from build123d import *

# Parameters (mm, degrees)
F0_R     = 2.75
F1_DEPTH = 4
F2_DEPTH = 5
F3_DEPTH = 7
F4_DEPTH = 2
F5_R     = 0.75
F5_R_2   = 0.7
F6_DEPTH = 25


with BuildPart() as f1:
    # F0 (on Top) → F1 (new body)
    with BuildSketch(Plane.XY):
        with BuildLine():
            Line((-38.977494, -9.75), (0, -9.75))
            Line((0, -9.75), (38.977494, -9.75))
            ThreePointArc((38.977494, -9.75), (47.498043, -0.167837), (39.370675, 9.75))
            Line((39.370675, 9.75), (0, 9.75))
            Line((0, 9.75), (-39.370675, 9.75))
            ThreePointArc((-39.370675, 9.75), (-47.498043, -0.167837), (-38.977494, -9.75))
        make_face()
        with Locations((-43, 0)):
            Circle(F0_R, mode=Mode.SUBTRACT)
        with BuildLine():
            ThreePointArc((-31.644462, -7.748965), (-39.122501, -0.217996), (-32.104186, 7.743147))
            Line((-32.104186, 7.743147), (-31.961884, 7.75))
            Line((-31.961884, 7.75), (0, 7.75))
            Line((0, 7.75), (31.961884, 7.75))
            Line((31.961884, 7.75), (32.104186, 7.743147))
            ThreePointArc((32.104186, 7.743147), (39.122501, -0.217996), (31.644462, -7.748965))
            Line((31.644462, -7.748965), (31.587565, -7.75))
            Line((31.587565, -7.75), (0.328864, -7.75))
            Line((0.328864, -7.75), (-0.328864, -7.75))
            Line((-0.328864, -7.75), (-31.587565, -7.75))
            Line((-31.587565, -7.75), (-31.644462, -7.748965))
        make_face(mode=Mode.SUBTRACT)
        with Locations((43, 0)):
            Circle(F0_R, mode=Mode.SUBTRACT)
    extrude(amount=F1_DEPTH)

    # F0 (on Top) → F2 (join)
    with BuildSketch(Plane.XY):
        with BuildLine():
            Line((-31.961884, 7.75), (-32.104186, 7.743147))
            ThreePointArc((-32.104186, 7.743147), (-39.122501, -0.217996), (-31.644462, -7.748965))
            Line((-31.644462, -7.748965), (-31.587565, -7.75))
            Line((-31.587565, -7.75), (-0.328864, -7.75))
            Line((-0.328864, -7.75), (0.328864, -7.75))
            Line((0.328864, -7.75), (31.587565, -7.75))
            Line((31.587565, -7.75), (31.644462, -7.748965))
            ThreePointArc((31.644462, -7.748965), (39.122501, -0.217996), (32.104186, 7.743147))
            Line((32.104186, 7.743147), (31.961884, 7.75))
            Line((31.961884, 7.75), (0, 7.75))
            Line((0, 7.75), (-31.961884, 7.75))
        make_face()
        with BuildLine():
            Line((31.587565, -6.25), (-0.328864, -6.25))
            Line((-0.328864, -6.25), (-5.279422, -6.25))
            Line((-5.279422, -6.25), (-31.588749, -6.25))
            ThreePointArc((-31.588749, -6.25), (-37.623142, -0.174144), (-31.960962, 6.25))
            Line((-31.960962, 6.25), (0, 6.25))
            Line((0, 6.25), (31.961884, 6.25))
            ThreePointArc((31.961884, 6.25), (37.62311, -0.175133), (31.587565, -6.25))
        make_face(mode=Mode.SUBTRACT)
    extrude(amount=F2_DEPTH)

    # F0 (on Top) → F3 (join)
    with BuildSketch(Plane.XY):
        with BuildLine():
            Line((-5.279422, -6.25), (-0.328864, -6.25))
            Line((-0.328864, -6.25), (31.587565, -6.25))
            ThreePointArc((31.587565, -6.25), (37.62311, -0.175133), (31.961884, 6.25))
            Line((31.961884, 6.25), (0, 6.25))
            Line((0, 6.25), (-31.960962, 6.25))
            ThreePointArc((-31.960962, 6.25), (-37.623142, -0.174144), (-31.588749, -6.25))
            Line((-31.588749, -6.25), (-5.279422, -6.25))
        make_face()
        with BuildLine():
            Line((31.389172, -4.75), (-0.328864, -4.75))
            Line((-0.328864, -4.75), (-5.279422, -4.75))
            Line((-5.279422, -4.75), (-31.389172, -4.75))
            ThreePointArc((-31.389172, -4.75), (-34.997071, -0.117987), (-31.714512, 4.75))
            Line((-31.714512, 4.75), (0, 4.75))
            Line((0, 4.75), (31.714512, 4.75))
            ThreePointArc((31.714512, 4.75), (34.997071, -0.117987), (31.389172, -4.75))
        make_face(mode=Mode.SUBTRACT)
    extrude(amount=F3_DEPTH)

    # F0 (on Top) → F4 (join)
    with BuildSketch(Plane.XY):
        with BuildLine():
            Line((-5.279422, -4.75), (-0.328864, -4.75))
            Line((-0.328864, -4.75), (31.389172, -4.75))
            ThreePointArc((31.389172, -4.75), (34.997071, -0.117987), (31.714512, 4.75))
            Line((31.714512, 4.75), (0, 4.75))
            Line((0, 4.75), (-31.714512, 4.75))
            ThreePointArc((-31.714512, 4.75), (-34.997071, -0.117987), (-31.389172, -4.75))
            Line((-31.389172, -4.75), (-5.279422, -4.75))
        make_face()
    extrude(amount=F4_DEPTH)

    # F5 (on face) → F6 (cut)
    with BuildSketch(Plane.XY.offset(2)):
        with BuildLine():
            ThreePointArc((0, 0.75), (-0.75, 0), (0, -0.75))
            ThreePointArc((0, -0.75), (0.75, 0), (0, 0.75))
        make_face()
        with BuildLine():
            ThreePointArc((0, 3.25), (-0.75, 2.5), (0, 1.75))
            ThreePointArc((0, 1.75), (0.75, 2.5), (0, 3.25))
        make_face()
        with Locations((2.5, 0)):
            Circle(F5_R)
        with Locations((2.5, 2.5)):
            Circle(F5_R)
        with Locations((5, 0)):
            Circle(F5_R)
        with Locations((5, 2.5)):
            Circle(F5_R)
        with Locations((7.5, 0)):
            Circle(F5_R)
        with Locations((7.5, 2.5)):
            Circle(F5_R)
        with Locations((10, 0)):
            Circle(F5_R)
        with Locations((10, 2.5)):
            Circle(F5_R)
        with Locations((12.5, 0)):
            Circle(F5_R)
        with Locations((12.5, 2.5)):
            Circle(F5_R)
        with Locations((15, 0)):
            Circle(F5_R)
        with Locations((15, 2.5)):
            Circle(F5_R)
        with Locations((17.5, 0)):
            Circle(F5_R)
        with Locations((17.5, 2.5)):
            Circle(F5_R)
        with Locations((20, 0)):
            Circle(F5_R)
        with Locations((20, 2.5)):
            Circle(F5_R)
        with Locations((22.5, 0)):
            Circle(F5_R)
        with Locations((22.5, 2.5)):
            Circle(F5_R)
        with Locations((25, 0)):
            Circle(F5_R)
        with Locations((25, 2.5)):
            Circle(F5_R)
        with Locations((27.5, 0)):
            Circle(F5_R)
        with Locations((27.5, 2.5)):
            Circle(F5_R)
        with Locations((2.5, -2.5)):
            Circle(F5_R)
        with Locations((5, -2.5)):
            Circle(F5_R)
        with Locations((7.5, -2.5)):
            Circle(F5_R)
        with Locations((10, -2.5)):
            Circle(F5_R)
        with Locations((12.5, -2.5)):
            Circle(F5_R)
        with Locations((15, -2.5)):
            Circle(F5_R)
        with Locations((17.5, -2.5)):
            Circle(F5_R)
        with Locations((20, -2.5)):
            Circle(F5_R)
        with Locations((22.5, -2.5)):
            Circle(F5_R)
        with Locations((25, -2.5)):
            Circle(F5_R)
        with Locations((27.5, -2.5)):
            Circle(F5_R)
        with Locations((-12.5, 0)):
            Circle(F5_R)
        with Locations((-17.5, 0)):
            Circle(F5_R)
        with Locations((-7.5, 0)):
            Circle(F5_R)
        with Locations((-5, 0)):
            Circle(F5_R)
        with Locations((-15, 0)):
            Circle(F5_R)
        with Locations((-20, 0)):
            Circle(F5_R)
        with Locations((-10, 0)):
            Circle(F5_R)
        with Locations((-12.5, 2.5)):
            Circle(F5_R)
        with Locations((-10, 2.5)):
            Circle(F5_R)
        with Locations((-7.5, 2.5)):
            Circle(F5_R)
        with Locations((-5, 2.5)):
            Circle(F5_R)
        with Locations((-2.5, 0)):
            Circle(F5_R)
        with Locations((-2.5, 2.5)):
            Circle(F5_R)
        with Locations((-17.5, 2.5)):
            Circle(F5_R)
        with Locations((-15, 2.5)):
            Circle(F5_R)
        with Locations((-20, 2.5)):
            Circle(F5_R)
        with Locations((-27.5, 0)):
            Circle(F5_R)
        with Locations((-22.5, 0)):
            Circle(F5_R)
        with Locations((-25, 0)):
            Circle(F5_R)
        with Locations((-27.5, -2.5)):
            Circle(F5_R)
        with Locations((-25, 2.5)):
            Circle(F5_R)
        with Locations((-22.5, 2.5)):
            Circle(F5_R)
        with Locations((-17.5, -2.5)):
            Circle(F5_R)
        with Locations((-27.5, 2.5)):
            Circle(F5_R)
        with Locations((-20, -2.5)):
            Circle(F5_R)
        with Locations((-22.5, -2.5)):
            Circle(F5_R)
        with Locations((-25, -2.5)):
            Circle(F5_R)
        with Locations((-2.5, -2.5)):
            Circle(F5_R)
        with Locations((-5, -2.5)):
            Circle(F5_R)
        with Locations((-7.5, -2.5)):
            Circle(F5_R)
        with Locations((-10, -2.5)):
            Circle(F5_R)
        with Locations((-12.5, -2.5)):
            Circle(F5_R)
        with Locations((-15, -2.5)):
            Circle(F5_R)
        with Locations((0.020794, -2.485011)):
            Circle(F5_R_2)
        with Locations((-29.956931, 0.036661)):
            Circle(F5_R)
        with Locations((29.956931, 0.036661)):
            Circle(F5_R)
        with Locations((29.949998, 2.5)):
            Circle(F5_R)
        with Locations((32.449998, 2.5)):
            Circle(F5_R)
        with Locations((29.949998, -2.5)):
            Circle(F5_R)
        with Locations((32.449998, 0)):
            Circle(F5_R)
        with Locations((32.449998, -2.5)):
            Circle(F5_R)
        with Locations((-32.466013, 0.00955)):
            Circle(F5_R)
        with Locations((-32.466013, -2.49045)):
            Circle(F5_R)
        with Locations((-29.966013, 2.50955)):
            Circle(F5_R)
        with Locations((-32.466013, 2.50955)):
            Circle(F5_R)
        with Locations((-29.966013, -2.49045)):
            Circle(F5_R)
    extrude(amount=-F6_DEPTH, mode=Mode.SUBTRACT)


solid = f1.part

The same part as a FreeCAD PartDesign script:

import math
import FreeCAD as App
import Part
import Sketcher

V = App.Vector

doc = App.newDocument("Part")
body = doc.addObject("PartDesign::Body", "Body")

# Sketch on XY plane
sketch1 = body.newObject("Sketcher::SketchObject", "Sketch")
sketch1.AttachmentSupport = (doc.getObject("XY_Plane"), [""])
sketch1.MapMode = "FlatFace"
sketch1.addGeometry([
    Part.LineSegment(V(-38.98, -9.75, 0), V(38.98, -9.75, 0)),  # 0
    Part.ArcOfCircle(Part.Circle(V(37.63, 0.03, 0), V(0, 0, 1), 9.87), math.radians(-82), math.radians(80)),  # 1
    Part.LineSegment(V(39.37, 9.75, 0), V(-39.37, 9.75, 0)),  # 2
    Part.ArcOfCircle(Part.Circle(V(-37.63, 0.03, 0), V(0, 0, 1), 9.87), math.radians(100), math.radians(262)),  # 3
    Part.Circle(V(-43, 0, 0), V(0, 0, 1), 2.75),  # 4
    Part.LineSegment(V(-31.59, -7.75, 0), V(-31.64, -7.75, 0)),  # 5
    Part.ArcOfCircle(Part.Circle(V(-31.36, 0.01, 0), V(0, 0, 1), 7.77), math.radians(96), math.radians(268)),  # 6
    Part.LineSegment(V(-32.1, 7.74, 0), V(-31.96, 7.75, 0)),  # 7
    Part.LineSegment(V(-31.96, 7.75, 0), V(31.96, 7.75, 0)),  # 8
    Part.LineSegment(V(31.96, 7.75, 0), V(32.1, 7.74, 0)),  # 9
    Part.ArcOfCircle(Part.Circle(V(31.36, 0.01, 0), V(0, 0, 1), 7.77), math.radians(-88), math.radians(84)),  # 10
    Part.LineSegment(V(31.64, -7.75, 0), V(31.59, -7.75, 0)),  # 11
    Part.LineSegment(V(31.59, -7.75, 0), V(-31.59, -7.75, 0)),  # 12
    Part.Circle(V(43, 0, 0), V(0, 0, 1), 2.75),  # 13
], False)
sketch1.addConstraint([
    Sketcher.Constraint("Coincident", 0, 2, 1, 1),
    Sketcher.Constraint("Coincident", 1, 2, 2, 1),
    Sketcher.Constraint("Coincident", 2, 2, 3, 1),
    Sketcher.Constraint("Coincident", 3, 2, 0, 1),
    Sketcher.Constraint("Coincident", 5, 2, 6, 2),
    Sketcher.Constraint("Coincident", 6, 1, 7, 1),
    Sketcher.Constraint("Coincident", 7, 2, 8, 1),
    Sketcher.Constraint("Coincident", 8, 2, 9, 1),
    Sketcher.Constraint("Coincident", 9, 2, 10, 2),
    Sketcher.Constraint("Coincident", 10, 1, 11, 1),
    Sketcher.Constraint("Coincident", 11, 2, 12, 1),
    Sketcher.Constraint("Coincident", 12, 2, 5, 1),
    Sketcher.Constraint("Horizontal", 0),
    Sketcher.Constraint("Horizontal", 2),
    Sketcher.Constraint("Horizontal", 8),
    Sketcher.Constraint("Horizontal", 12),
    Sketcher.Constraint("Equal", 1, 3),
    Sketcher.Constraint("Equal", 6, 10),
    Sketcher.Constraint("Equal", 4, 13),
    Sketcher.Constraint("Symmetric", 4, 3, 13, 3, -1, 1),
    Sketcher.Constraint("Symmetric", 1, 3, 3, 3, -2),
    Sketcher.Constraint("Symmetric", 6, 3, 10, 3, -2),
    Sketcher.Constraint("PointOnObject", 4, 3, -1),
    Sketcher.Constraint("Horizontal", 6, 1, 9, 2),
    Sketcher.Constraint("Horizontal", 5, 2, 10, 1),
    Sketcher.Constraint("Equal", 7, 9),
    Sketcher.Constraint("Equal", 5, 11),
    Sketcher.Constraint("Diameter", 4, 5.5),
    Sketcher.Constraint("DistanceX", 4, 3, -1, 1, 43.0),
    Sketcher.Constraint("DistanceY", 7, 2, 2, 2, 2.0),
    Sketcher.Constraint("DistanceY", 0, 2, 11, 2, 2.0),
    Sketcher.Constraint("DistanceY", 0, 2, 1, 2, 19.5),
    Sketcher.Constraint("DistanceY", 0, 2, -1, 1, 9.75),
    Sketcher.Constraint("Radius", 1, 9.87416),
    Sketcher.Constraint("Radius", 6, 7.766573),
    Sketcher.Constraint("DistanceX", 0, 1, 0, 2, 77.954988),
    Sketcher.Constraint("DistanceX", 2, 2, 2, 1, 78.74135),
    Sketcher.Constraint("DistanceX", 8, 1, 8, 2, 63.923768),
    Sketcher.Constraint("DistanceX", 12, 2, 12, 1, 63.17513),
    Sketcher.Constraint("DistanceX", 8, 2, 9, 2, 0.142302),
    Sketcher.Constraint("DistanceX", -1, 1, 10, 1, 31.644462),
    Sketcher.Constraint("DistanceX", 6, 3, 10, 3, 62.718691),
    Sketcher.Constraint("DistanceY", 5, 2, 3, 3, 7.780181),
])
pad1 = body.newObject("PartDesign::Pad", "Pad")
pad1.Profile = sketch1
pad1.Length = 4

# Sketch on XY plane
sketch2 = body.newObject("Sketcher::SketchObject", "Sketch001")
sketch2.AttachmentSupport = (doc.getObject("XY_Plane"), [""])
sketch2.MapMode = "FlatFace"
sketch2.addGeometry([
    Part.LineSegment(V(-31.96, 7.75, 0), V(-32.1, 7.74, 0)),  # 0
    Part.ArcOfCircle(Part.Circle(V(-31.36, 0.01, 0), V(0, 0, 1), 7.77), math.radians(96), math.radians(268)),  # 1
    Part.LineSegment(V(-31.64, -7.75, 0), V(-31.59, -7.75, 0)),  # 2
    Part.LineSegment(V(-31.59, -7.75, 0), V(31.59, -7.75, 0)),  # 3
    Part.LineSegment(V(31.59, -7.75, 0), V(31.64, -7.75, 0)),  # 4
    Part.ArcOfCircle(Part.Circle(V(31.36, 0.01, 0), V(0, 0, 1), 7.77), math.radians(-88), math.radians(84)),  # 5
    Part.LineSegment(V(32.1, 7.74, 0), V(31.96, 7.75, 0)),  # 6
    Part.LineSegment(V(31.96, 7.75, 0), V(-31.96, 7.75, 0)),  # 7
    Part.ArcOfCircle(Part.Circle(V(31.36, 0.01, 0), V(0, 0, 1), 6.27), math.radians(-88), math.radians(84)),  # 8
    Part.LineSegment(V(31.59, -6.25, 0), V(-31.59, -6.25, 0)),  # 9
    Part.ArcOfCircle(Part.Circle(V(-31.36, 0.01, 0), V(0, 0, 1), 6.27), math.radians(96), math.radians(268)),  # 10
    Part.LineSegment(V(-31.96, 6.25, 0), V(31.96, 6.25, 0)),  # 11
], False)
sketch2.addConstraint([
    Sketcher.Constraint("Coincident", 0, 2, 1, 1),
    Sketcher.Constraint("Coincident", 1, 2, 2, 1),
    Sketcher.Constraint("Coincident", 2, 2, 3, 1),
    Sketcher.Constraint("Coincident", 3, 2, 4, 1),
    Sketcher.Constraint("Coincident", 4, 2, 5, 1),
    Sketcher.Constraint("Coincident", 5, 2, 6, 1),
    Sketcher.Constraint("Coincident", 6, 2, 7, 1),
    Sketcher.Constraint("Coincident", 7, 2, 0, 1),
    Sketcher.Constraint("Coincident", 8, 1, 9, 1),
    Sketcher.Constraint("Coincident", 9, 2, 10, 2),
    Sketcher.Constraint("Coincident", 10, 1, 11, 1),
    Sketcher.Constraint("Coincident", 11, 2, 8, 2),
    Sketcher.Constraint("Horizontal", 3),
    Sketcher.Constraint("Horizontal", 7),
    Sketcher.Constraint("Horizontal", 9),
    Sketcher.Constraint("Horizontal", 11),
    Sketcher.Constraint("Coincident", 10, 3, 1, 3),
    Sketcher.Constraint("Equal", 1, 5),
    Sketcher.Constraint("Symmetric", 1, 3, 5, 3, -2),
    Sketcher.Constraint("Horizontal", 1, 2, 4, 2),
    Sketcher.Constraint("Horizontal", 0, 2, 5, 2),
    Sketcher.Constraint("Vertical", 3, 2, 8, 1),
    Sketcher.Constraint("Vertical", 6, 2, 11, 2),
    Sketcher.Constraint("Equal", 2, 4),
    Sketcher.Constraint("Equal", 0, 6),
    Sketcher.Constraint("DistanceY", 3, 2, 6, 2, 15.5),
    Sketcher.Constraint("DistanceY", 3, 2, 8, 1, 1.5),
    Sketcher.Constraint("DistanceY", 10, 1, 7, 2, 1.5),
    Sketcher.Constraint("DistanceY", 2, 2, -1, 1, 7.75),
    Sketcher.Constraint("Radius", 1, 7.766573),
    Sketcher.Constraint("Radius", 8, 6.266597),
    Sketcher.Constraint("Radius", 10, 6.266573),
    Sketcher.Constraint("DistanceX", 3, 1, 3, 2, 63.17513),
    Sketcher.Constraint("DistanceX", 7, 2, 7, 1, 63.923768),
    Sketcher.Constraint("DistanceX", 0, 2, 7, 2, 0.142302),
    Sketcher.Constraint("DistanceX", 9, 2, 9, 1, 63.176314),
    Sketcher.Constraint("DistanceX", 11, 1, 11, 2, 63.922846),
    Sketcher.Constraint("DistanceX", 1, 2, -1, 1, 31.644462),
])
pad2 = body.newObject("PartDesign::Pad", "Pad001")
pad2.Profile = sketch2
pad2.Length = 5

# Sketch on XY plane
sketch3 = body.newObject("Sketcher::SketchObject", "Sketch002")
sketch3.AttachmentSupport = (doc.getObject("XY_Plane"), [""])
sketch3.MapMode = "FlatFace"
sketch3.addGeometry([
    Part.ArcOfCircle(Part.Circle(V(31.4, 0, 0), V(0, 0, 1), 6.3), math.radians(-88), math.radians(84)),  # 0
    Part.LineSegment(V(32, 6.2, 0), V(-32, 6.2, 0)),  # 1
    Part.ArcOfCircle(Part.Circle(V(-31.4, 0, 0), V(0, 0, 1), 6.3), math.radians(96), math.radians(268)),  # 2
    Part.LineSegment(V(-31.6, -6.2, 0), V(31.6, -6.2, 0)),  # 3
    Part.ArcOfCircle(Part.Circle(V(30, 0.1, 0), V(0, 0, 1), 5), math.radians(-74), math.radians(70)),  # 4
    Part.LineSegment(V(31.4, -4.8, 0), V(-31.4, -4.8, 0)),  # 5
    Part.ArcOfCircle(Part.Circle(V(-30, 0.1, 0), V(0, 0, 1), 5), math.radians(110), math.radians(254)),  # 6
    Part.LineSegment(V(-31.7, 4.8, 0), V(31.7, 4.8, 0)),  # 7
], False)
sketch3.addConstraint([
    Sketcher.Constraint("Coincident", 0, 2, 1, 1),
    Sketcher.Constraint("Coincident", 1, 2, 2, 1),
    Sketcher.Constraint("Coincident", 2, 2, 3, 1),
    Sketcher.Constraint("Coincident", 3, 2, 0, 1),
    Sketcher.Constraint("Coincident", 4, 1, 5, 1),
    Sketcher.Constraint("Coincident", 5, 2, 6, 2),
    Sketcher.Constraint("Coincident", 6, 1, 7, 1),
    Sketcher.Constraint("Coincident", 7, 2, 4, 2),
    Sketcher.Constraint("Horizontal", 1),
    Sketcher.Constraint("Horizontal", 3),
    Sketcher.Constraint("Horizontal", 5),
    Sketcher.Constraint("Horizontal", 7),
    Sketcher.Constraint("Equal", 4, 6),
    Sketcher.Constraint("Symmetric", 4, 3, 6, 3, -2),
    Sketcher.Constraint("Radius", 4, 5.0),
    Sketcher.Constraint("DistanceX", -1, 1, 4, 3, 30.000001),
    Sketcher.Constraint("DistanceY", 4, 1, 0, 2, 11.0),
    Sketcher.Constraint("DistanceY", 2, 2, 6, 1, 11.0),
    Sketcher.Constraint("DistanceY", 2, 2, 1, 2, 12.5),
    Sketcher.Constraint("DistanceY", -1, 1, 0, 2, 6.25),
    Sketcher.Constraint("Radius", 0, 6.266597),
    Sketcher.Constraint("Radius", 2, 6.266573),
    Sketcher.Constraint("DistanceX", 1, 2, 1, 1, 63.922846),
    Sketcher.Constraint("DistanceX", 3, 1, 3, 2, 63.176314),
    Sketcher.Constraint("DistanceX", 5, 2, 5, 1, 62.778344),
    Sketcher.Constraint("DistanceX", -1, 1, 0, 3, 31.35932),
    Sketcher.Constraint("DistanceY", -1, 1, 0, 3, 0.012439),
])
pad3 = body.newObject("PartDesign::Pad", "Pad002")
pad3.Profile = sketch3
pad3.Length = 7

# Sketch on XY plane
sketch4 = body.newObject("Sketcher::SketchObject", "Sketch003")
sketch4.AttachmentSupport = (doc.getObject("XY_Plane"), [""])
sketch4.MapMode = "FlatFace"
sketch4.addGeometry([
    Part.ArcOfCircle(Part.Circle(V(30, 0.1, 0), V(0, 0, 1), 5), math.radians(-74), math.radians(70)),
    Part.LineSegment(V(31.7, 4.8, 0), V(-31.7, 4.8, 0)),
    Part.ArcOfCircle(Part.Circle(V(-30, 0.1, 0), V(0, 0, 1), 5), math.radians(110), math.radians(254)),
    Part.LineSegment(V(-31.4, -4.8, 0), V(31.4, -4.8, 0)),
], False)
sketch4.addConstraint([
    Sketcher.Constraint("Coincident", 0, 2, 1, 1),
    Sketcher.Constraint("Coincident", 1, 2, 2, 1),
    Sketcher.Constraint("Coincident", 2, 2, 3, 1),
    Sketcher.Constraint("Coincident", 3, 2, 0, 1),
    Sketcher.Constraint("Horizontal", 1),
    Sketcher.Constraint("Horizontal", 3),
    Sketcher.Constraint("Equal", 0, 2),
    Sketcher.Constraint("Symmetric", 0, 3, 2, 3, -2),
    Sketcher.Constraint("Radius", 0, 5.0),
    Sketcher.Constraint("DistanceX", -1, 1, 0, 3, 30.000001),
    Sketcher.Constraint("DistanceY", 2, 2, 1, 2, 9.5),
    Sketcher.Constraint("DistanceY", -1, 1, 0, 2, 4.75),
    Sketcher.Constraint("DistanceX", 1, 2, 1, 1, 63.429024),
])
pad4 = body.newObject("PartDesign::Pad", "Pad003")
pad4.Profile = sketch4
pad4.Length = 2

# Sketch on XY plane
sketch5 = body.newObject("Sketcher::SketchObject", "Sketch004")
sketch5.AttachmentSupport = (doc.getObject("XY_Plane"), [""])
sketch5.MapMode = "FlatFace"
sketch5.AttachmentOffset = App.Placement(V(0, 0, 2), App.Rotation())
sketch5.addGeometry([
    Part.Circle(V(0, 0, 0), V(0, 0, 1), 0.8),  # 0
    Part.Circle(V(0, 2.5, 0), V(0, 0, 1), 0.8),  # 1
    Part.Circle(V(2.5, 0, 0), V(0, 0, 1), 0.8),  # 2
    Part.Circle(V(2.5, 2.5, 0), V(0, 0, 1), 0.8),  # 3
    Part.Circle(V(5, 0, 0), V(0, 0, 1), 0.8),  # 4
    Part.Circle(V(5, 2.5, 0), V(0, 0, 1), 0.8),  # 5
    Part.Circle(V(7.5, 0, 0), V(0, 0, 1), 0.8),  # 6
    Part.Circle(V(7.5, 2.5, 0), V(0, 0, 1), 0.8),  # 7
    Part.Circle(V(10, 0, 0), V(0, 0, 1), 0.8),  # 8
    Part.Circle(V(10, 2.5, 0), V(0, 0, 1), 0.8),  # 9
    Part.Circle(V(12.5, 0, 0), V(0, 0, 1), 0.8),  # 10
    Part.Circle(V(12.5, 2.5, 0), V(0, 0, 1), 0.8),  # 11
    Part.Circle(V(15, 0, 0), V(0, 0, 1), 0.8),  # 12
    Part.Circle(V(15, 2.5, 0), V(0, 0, 1), 0.8),  # 13
    Part.Circle(V(17.5, 0, 0), V(0, 0, 1), 0.8),  # 14
    Part.Circle(V(17.5, 2.5, 0), V(0, 0, 1), 0.8),  # 15
    Part.Circle(V(20, 0, 0), V(0, 0, 1), 0.8),  # 16
    Part.Circle(V(20, 2.5, 0), V(0, 0, 1), 0.8),  # 17
    Part.Circle(V(22.5, 0, 0), V(0, 0, 1), 0.8),  # 18
    Part.Circle(V(22.5, 2.5, 0), V(0, 0, 1), 0.8),  # 19
    Part.Circle(V(25, 0, 0), V(0, 0, 1), 0.8),  # 20
    Part.Circle(V(25, 2.5, 0), V(0, 0, 1), 0.8),  # 21
    Part.Circle(V(27.5, 0, 0), V(0, 0, 1), 0.8),  # 22
    Part.Circle(V(27.5, 2.5, 0), V(0, 0, 1), 0.8),  # 23
    Part.Circle(V(2.5, -2.5, 0), V(0, 0, 1), 0.8),  # 24
    Part.Circle(V(5, -2.5, 0), V(0, 0, 1), 0.8),  # 25
    Part.Circle(V(7.5, -2.5, 0), V(0, 0, 1), 0.8),  # 26
    Part.Circle(V(10, -2.5, 0), V(0, 0, 1), 0.8),  # 27
    Part.Circle(V(12.5, -2.5, 0), V(0, 0, 1), 0.8),  # 28
    Part.Circle(V(15, -2.5, 0), V(0, 0, 1), 0.8),  # 29
    Part.Circle(V(17.5, -2.5, 0), V(0, 0, 1), 0.8),  # 30
    Part.Circle(V(20, -2.5, 0), V(0, 0, 1), 0.8),  # 31
    Part.Circle(V(22.5, -2.5, 0), V(0, 0, 1), 0.8),  # 32
    Part.Circle(V(25, -2.5, 0), V(0, 0, 1), 0.8),  # 33
    Part.Circle(V(27.5, -2.5, 0), V(0, 0, 1), 0.8),  # 34
    Part.Circle(V(-12.5, 0, 0), V(0, 0, 1), 0.8),  # 35
    Part.Circle(V(-17.5, 0, 0), V(0, 0, 1), 0.8),  # 36
    Part.Circle(V(-7.5, 0, 0), V(0, 0, 1), 0.8),  # 37
    Part.Circle(V(-5, 0, 0), V(0, 0, 1), 0.8),  # 38
    Part.Circle(V(-15, 0, 0), V(0, 0, 1), 0.8),  # 39
    Part.Circle(V(-20, 0, 0), V(0, 0, 1), 0.8),  # 40
    Part.Circle(V(-10, 0, 0), V(0, 0, 1), 0.8),  # 41
    Part.Circle(V(-12.5, 2.5, 0), V(0, 0, 1), 0.8),  # 42
    Part.Circle(V(-10, 2.5, 0), V(0, 0, 1), 0.8),  # 43
    Part.Circle(V(-7.5, 2.5, 0), V(0, 0, 1), 0.8),  # 44
    Part.Circle(V(-5, 2.5, 0), V(0, 0, 1), 0.8),  # 45
    Part.Circle(V(-2.5, 0, 0), V(0, 0, 1), 0.8),  # 46
    Part.Circle(V(-2.5, 2.5, 0), V(0, 0, 1), 0.8),  # 47
    Part.Circle(V(-17.5, 2.5, 0), V(0, 0, 1), 0.8),  # 48
    Part.Circle(V(-15, 2.5, 0), V(0, 0, 1), 0.8),  # 49
    Part.Circle(V(-20, 2.5, 0), V(0, 0, 1), 0.8),  # 50
    Part.Circle(V(-27.5, 0, 0), V(0, 0, 1), 0.8),  # 51
    Part.Circle(V(-22.5, 0, 0), V(0, 0, 1), 0.8),  # 52
    Part.Circle(V(-25, 0, 0), V(0, 0, 1), 0.8),  # 53
    Part.Circle(V(-27.5, -2.5, 0), V(0, 0, 1), 0.8),  # 54
    Part.Circle(V(-25, 2.5, 0), V(0, 0, 1), 0.8),  # 55
    Part.Circle(V(-22.5, 2.5, 0), V(0, 0, 1), 0.8),  # 56
    Part.Circle(V(-17.5, -2.5, 0), V(0, 0, 1), 0.8),  # 57
    Part.Circle(V(-27.5, 2.5, 0), V(0, 0, 1), 0.8),  # 58
    Part.Circle(V(-20, -2.5, 0), V(0, 0, 1), 0.8),  # 59
    Part.Circle(V(-22.5, -2.5, 0), V(0, 0, 1), 0.8),  # 60
    Part.Circle(V(-25, -2.5, 0), V(0, 0, 1), 0.8),  # 61
    Part.Circle(V(-2.5, -2.5, 0), V(0, 0, 1), 0.8),  # 62
    Part.Circle(V(-5, -2.5, 0), V(0, 0, 1), 0.8),  # 63
    Part.Circle(V(-7.5, -2.5, 0), V(0, 0, 1), 0.8),  # 64
    Part.Circle(V(-10, -2.5, 0), V(0, 0, 1), 0.8),  # 65
    Part.Circle(V(-12.5, -2.5, 0), V(0, 0, 1), 0.8),  # 66
    Part.Circle(V(-15, -2.5, 0), V(0, 0, 1), 0.8),  # 67
    Part.Circle(V(0, -2.5, 0), V(0, 0, 1), 0.7),  # 68
    Part.Circle(V(-30, 0, 0), V(0, 0, 1), 0.8),  # 69
    Part.Circle(V(30, 0, 0), V(0, 0, 1), 0.8),  # 70
    Part.Circle(V(29.9, 2.5, 0), V(0, 0, 1), 0.8),  # 71
    Part.Circle(V(32.4, 2.5, 0), V(0, 0, 1), 0.8),  # 72
    Part.Circle(V(29.9, -2.5, 0), V(0, 0, 1), 0.8),  # 73
    Part.Circle(V(32.4, 0, 0), V(0, 0, 1), 0.8),  # 74
    Part.Circle(V(32.4, -2.5, 0), V(0, 0, 1), 0.8),  # 75
    Part.Circle(V(-32.5, 0, 0), V(0, 0, 1), 0.8),  # 76
    Part.Circle(V(-32.5, -2.5, 0), V(0, 0, 1), 0.8),  # 77
    Part.Circle(V(-30, 2.5, 0), V(0, 0, 1), 0.8),  # 78
    Part.Circle(V(-32.5, 2.5, 0), V(0, 0, 1), 0.8),  # 79
    Part.Circle(V(-30, -2.5, 0), V(0, 0, 1), 0.8),  # 80
], False)
sketch5.addConstraint([
    Sketcher.Constraint("Coincident", 0, 3, -1, 1),
    Sketcher.Constraint("Equal", 0, 1),
    Sketcher.Constraint("Equal", 1, 2),
    Sketcher.Constraint("Equal", 2, 3),
    Sketcher.Constraint("Equal", 3, 4),
    Sketcher.Constraint("Equal", 4, 5),
    Sketcher.Constraint("Equal", 5, 6),
    Sketcher.Constraint("Equal", 6, 7),
    Sketcher.Constraint("Equal", 7, 8),
    Sketcher.Constraint("Equal", 8, 9),
    Sketcher.Constraint("Equal", 9, 10),
    Sketcher.Constraint("Equal", 10, 11),
    Sketcher.Constraint("Equal", 11, 12),
    Sketcher.Constraint("Equal", 12, 13),
    Sketcher.Constraint("Equal", 13, 14),
    Sketcher.Constraint("Equal", 14, 15),
    Sketcher.Constraint("Equal", 15, 16),
    Sketcher.Constraint("Equal", 16, 17),
    Sketcher.Constraint("Equal", 17, 18),
    Sketcher.Constraint("Equal", 18, 19),
    Sketcher.Constraint("Equal", 19, 20),
    Sketcher.Constraint("Equal", 20, 21),
    Sketcher.Constraint("Equal", 21, 22),
    Sketcher.Constraint("Equal", 22, 23),
    Sketcher.Constraint("Equal", 23, 24),
    Sketcher.Constraint("Equal", 24, 25),
    Sketcher.Constraint("Equal", 25, 26),
    Sketcher.Constraint("Equal", 26, 27),
    Sketcher.Constraint("Equal", 27, 28),
    Sketcher.Constraint("Equal", 28, 29),
    Sketcher.Constraint("Equal", 29, 30),
    Sketcher.Constraint("Equal", 30, 31),
    Sketcher.Constraint("Equal", 31, 32),
    Sketcher.Constraint("Equal", 32, 33),
    Sketcher.Constraint("Equal", 33, 34),
    Sketcher.Constraint("Equal", 34, 35),
    Sketcher.Constraint("Equal", 35, 36),
    Sketcher.Constraint("Equal", 36, 37),
    Sketcher.Constraint("Equal", 37, 38),
    Sketcher.Constraint("Equal", 38, 39),
    Sketcher.Constraint("Equal", 39, 40),
    Sketcher.Constraint("Equal", 40, 41),
    Sketcher.Constraint("Equal", 41, 42),
    Sketcher.Constraint("Equal", 42, 43),
    Sketcher.Constraint("Equal", 43, 44),
    Sketcher.Constraint("Equal", 44, 45),
    Sketcher.Constraint("Equal", 45, 46),
    Sketcher.Constraint("Equal", 46, 47),
    Sketcher.Constraint("Equal", 47, 48),
    Sketcher.Constraint("Equal", 48, 49),
    Sketcher.Constraint("Equal", 49, 50),
    Sketcher.Constraint("Equal", 50, 51),
    Sketcher.Constraint("Equal", 51, 52),
    Sketcher.Constraint("Equal", 52, 53),
    Sketcher.Constraint("Equal", 53, 54),
    Sketcher.Constraint("Equal", 54, 55),
    Sketcher.Constraint("Equal", 55, 56),
    Sketcher.Constraint("Equal", 56, 57),
    Sketcher.Constraint("Equal", 57, 58),
    Sketcher.Constraint("Equal", 58, 59),
    Sketcher.Constraint("Equal", 59, 60),
    Sketcher.Constraint("Equal", 60, 61),
    Sketcher.Constraint("Equal", 61, 62),
    Sketcher.Constraint("Equal", 62, 63),
    Sketcher.Constraint("Equal", 63, 64),
    Sketcher.Constraint("Equal", 64, 65),
    Sketcher.Constraint("Equal", 65, 66),
    Sketcher.Constraint("Equal", 66, 67),
    Sketcher.Constraint("Equal", 67, 69),
    Sketcher.Constraint("Equal", 69, 70),
    Sketcher.Constraint("Equal", 70, 71),
    Sketcher.Constraint("Equal", 71, 72),
    Sketcher.Constraint("Equal", 72, 73),
    Sketcher.Constraint("Equal", 73, 74),
    Sketcher.Constraint("Equal", 74, 75),
    Sketcher.Constraint("Equal", 75, 76),
    Sketcher.Constraint("Equal", 76, 77),
    Sketcher.Constraint("Equal", 77, 78),
    Sketcher.Constraint("Equal", 78, 79),
    Sketcher.Constraint("Equal", 79, 80),
    Sketcher.Constraint("Symmetric", 10, 3, 35, 3, -1, 1),
    Sketcher.Constraint("Symmetric", 14, 3, 36, 3, -1, 1),
    Sketcher.Constraint("Symmetric", 6, 3, 37, 3, -1, 1),
    Sketcher.Constraint("Symmetric", 4, 3, 38, 3, -1, 1),
    Sketcher.Constraint("Symmetric", 12, 3, 39, 3, -1, 1),
    Sketcher.Constraint("Symmetric", 16, 3, 40, 3, -1, 1),
    Sketcher.Constraint("Symmetric", 8, 3, 41, 3, -1, 1),
    Sketcher.Constraint("Symmetric", 28, 3, 42, 3, -1, 1),
    Sketcher.Constraint("Symmetric", 27, 3, 43, 3, -1, 1),
    Sketcher.Constraint("Symmetric", 26, 3, 44, 3, -1, 1),
    Sketcher.Constraint("Symmetric", 25, 3, 45, 3, -1, 1),
    Sketcher.Constraint("Symmetric", 2, 3, 46, 3, -1, 1),
    Sketcher.Constraint("Symmetric", 24, 3, 47, 3, -1, 1),
    Sketcher.Constraint("Symmetric", 30, 3, 48, 3, -1, 1),
    Sketcher.Constraint("Symmetric", 29, 3, 49, 3, -1, 1),
    Sketcher.Constraint("Symmetric", 31, 3, 50, 3, -1, 1),
    Sketcher.Constraint("Symmetric", 22, 3, 51, 3, -1, 1),
    Sketcher.Constraint("Symmetric", 18, 3, 52, 3, -1, 1),
    Sketcher.Constraint("Symmetric", 20, 3, 53, 3, -1, 1),
    Sketcher.Constraint("Symmetric", 23, 3, 54, 3, -1, 1),
    Sketcher.Constraint("Symmetric", 33, 3, 55, 3, -1, 1),
    Sketcher.Constraint("Symmetric", 32, 3, 56, 3, -1, 1),
    Sketcher.Constraint("Symmetric", 15, 3, 57, 3, -1, 1),
    Sketcher.Constraint("Symmetric", 34, 3, 58, 3, -1, 1),
    Sketcher.Constraint("Symmetric", 17, 3, 59, 3, -1, 1),
    Sketcher.Constraint("Symmetric", 19, 3, 60, 3, -1, 1),
    Sketcher.Constraint("Symmetric", 21, 3, 61, 3, -1, 1),
    Sketcher.Constraint("Symmetric", 3, 3, 62, 3, -1, 1),
    Sketcher.Constraint("Symmetric", 5, 3, 63, 3, -1, 1),
    Sketcher.Constraint("Symmetric", 7, 3, 64, 3, -1, 1),
    Sketcher.Constraint("Symmetric", 9, 3, 65, 3, -1, 1),
    Sketcher.Constraint("Symmetric", 11, 3, 66, 3, -1, 1),
    Sketcher.Constraint("Symmetric", 13, 3, 67, 3, -1, 1),
    Sketcher.Constraint("Symmetric", 11, 3, 42, 3, -2),
    Sketcher.Constraint("Symmetric", 9, 3, 43, 3, -2),
    Sketcher.Constraint("Symmetric", 7, 3, 44, 3, -2),
    Sketcher.Constraint("Symmetric", 5, 3, 45, 3, -2),
    Sketcher.Constraint("Symmetric", 3, 3, 47, 3, -2),
    Sketcher.Constraint("Symmetric", 15, 3, 48, 3, -2),
    Sketcher.Constraint("Symmetric", 13, 3, 49, 3, -2),
    Sketcher.Constraint("Symmetric", 17, 3, 50, 3, -2),
    Sketcher.Constraint("Symmetric", 34, 3, 54, 3, -2),
    Sketcher.Constraint("Symmetric", 21, 3, 55, 3, -2),
    Sketcher.Constraint("Symmetric", 19, 3, 56, 3, -2),
    Sketcher.Constraint("Symmetric", 69, 3, 70, 3, -2),
    Sketcher.Constraint("Symmetric", 71, 3, 73, 3, -1),
    Sketcher.Constraint("Symmetric", 72, 3, 75, 3, -1),
    Sketcher.Constraint("PointOnObject", 1, 3, -2),
    Sketcher.Constraint("PointOnObject", 2, 3, -1),
    Sketcher.Constraint("PointOnObject", 4, 3, -1),
    Sketcher.Constraint("PointOnObject", 6, 3, -1),
    Sketcher.Constraint("PointOnObject", 8, 3, -1),
    Sketcher.Constraint("PointOnObject", 10, 3, -1),
    Sketcher.Constraint("PointOnObject", 12, 3, -1),
    Sketcher.Constraint("PointOnObject", 14, 3, -1),
    Sketcher.Constraint("PointOnObject", 16, 3, -1),
    Sketcher.Constraint("PointOnObject", 18, 3, -1),
    Sketcher.Constraint("PointOnObject", 20, 3, -1),
    Sketcher.Constraint("PointOnObject", 22, 3, -1),
    Sketcher.Constraint("PointOnObject", 74, 3, -1),
    Sketcher.Constraint("Horizontal", 1, 3, 3, 3),
    Sketcher.Constraint("Horizontal", 3, 3, 5, 3),
    Sketcher.Constraint("Horizontal", 5, 3, 7, 3),
    Sketcher.Constraint("Horizontal", 7, 3, 9, 3),
    Sketcher.Constraint("Horizontal", 9, 3, 11, 3),
    Sketcher.Constraint("Horizontal", 11, 3, 13, 3),
    Sketcher.Constraint("Horizontal", 13, 3, 15, 3),
    Sketcher.Constraint("Horizontal", 15, 3, 17, 3),
    Sketcher.Constraint("Horizontal", 17, 3, 19, 3),
    Sketcher.Constraint("Horizontal", 19, 3, 21, 3),
    Sketcher.Constraint("Horizontal", 21, 3, 23, 3),
    Sketcher.Constraint("Horizontal", 58, 3, 71, 3),
    Sketcher.Constraint("Horizontal", 71, 3, 72, 3),
    Sketcher.Constraint("Horizontal", 78, 3, 79, 3),
    Sketcher.Constraint("Horizontal", 77, 3, 80, 3),
    Sketcher.Constraint("Vertical", 2, 3, 3, 3),
    Sketcher.Constraint("Vertical", 4, 3, 5, 3),
    Sketcher.Constraint("Vertical", 6, 3, 7, 3),
    Sketcher.Constraint("Vertical", 8, 3, 9, 3),
    Sketcher.Constraint("Vertical", 10, 3, 11, 3),
    Sketcher.Constraint("Vertical", 12, 3, 13, 3),
    Sketcher.Constraint("Vertical", 14, 3, 15, 3),
    Sketcher.Constraint("Vertical", 16, 3, 17, 3),
    Sketcher.Constraint("Vertical", 18, 3, 19, 3),
    Sketcher.Constraint("Vertical", 20, 3, 21, 3),
    Sketcher.Constraint("Vertical", 22, 3, 23, 3),
    Sketcher.Constraint("Vertical", 72, 3, 74, 3),
    Sketcher.Constraint("Vertical", 76, 3, 77, 3),
    Sketcher.Constraint("Vertical", 77, 3, 79, 3),
    Sketcher.Constraint("Vertical", 78, 3, 80, 3),
    Sketcher.Constraint("Diameter", 0, 1.5),
    Sketcher.Constraint("Diameter", 68, 1.4),
    Sketcher.Constraint("DistanceX", -1, 1, 4, 3, 5.0),
    Sketcher.Constraint("DistanceX", -1, 1, 8, 3, 10.0),
    Sketcher.Constraint("DistanceX", -1, 1, 12, 3, 15.0),
    Sketcher.Constraint("DistanceX", -1, 1, 16, 3, 20.0),
    Sketcher.Constraint("DistanceX", -1, 1, 20, 3, 25.0),
    Sketcher.Constraint("DistanceY", -1, 1, 1, 3, 2.5),
    Sketcher.Constraint("DistanceX", -1, 1, 2, 3, 2.5),
    Sketcher.Constraint("DistanceX", -1, 1, 6, 3, 7.5),
    Sketcher.Constraint("DistanceX", -1, 1, 10, 3, 12.5),
    Sketcher.Constraint("DistanceX", -1, 1, 14, 3, 17.5),
    Sketcher.Constraint("DistanceX", -1, 1, 18, 3, 22.5),
    Sketcher.Constraint("DistanceX", -1, 1, 22, 3, 27.5),
    Sketcher.Constraint("DistanceX", -1, 1, 71, 3, 29.949998),
    Sketcher.Constraint("DistanceY", 68, 3, -1, 1, 2.485011),
    Sketcher.Constraint("DistanceX", 69, 3, -1, 1, 29.956931),
    Sketcher.Constraint("DistanceY", -1, 1, 69, 3, 0.036661),
    Sketcher.Constraint("DistanceY", -1, 1, 76, 3, 0.00955),
    Sketcher.Constraint("DistanceY", 77, 3, -1, 1, 2.49045),
    Sketcher.Constraint("DistanceY", -1, 1, 78, 3, 2.50955),
    Sketcher.Constraint("DistanceX", -1, 1, 68, 3, 0.020794),
    Sketcher.Constraint("DistanceX", -1, 1, 72, 3, 32.449998),
    Sketcher.Constraint("DistanceX", 76, 3, -1, 1, 32.466013),
    Sketcher.Constraint("DistanceX", 78, 3, -1, 1, 29.966013),
])
pocket1 = body.newObject("PartDesign::Pocket", "Pocket")
pocket1.Profile = sketch5
pocket1.Length = 25

doc.recompute()
